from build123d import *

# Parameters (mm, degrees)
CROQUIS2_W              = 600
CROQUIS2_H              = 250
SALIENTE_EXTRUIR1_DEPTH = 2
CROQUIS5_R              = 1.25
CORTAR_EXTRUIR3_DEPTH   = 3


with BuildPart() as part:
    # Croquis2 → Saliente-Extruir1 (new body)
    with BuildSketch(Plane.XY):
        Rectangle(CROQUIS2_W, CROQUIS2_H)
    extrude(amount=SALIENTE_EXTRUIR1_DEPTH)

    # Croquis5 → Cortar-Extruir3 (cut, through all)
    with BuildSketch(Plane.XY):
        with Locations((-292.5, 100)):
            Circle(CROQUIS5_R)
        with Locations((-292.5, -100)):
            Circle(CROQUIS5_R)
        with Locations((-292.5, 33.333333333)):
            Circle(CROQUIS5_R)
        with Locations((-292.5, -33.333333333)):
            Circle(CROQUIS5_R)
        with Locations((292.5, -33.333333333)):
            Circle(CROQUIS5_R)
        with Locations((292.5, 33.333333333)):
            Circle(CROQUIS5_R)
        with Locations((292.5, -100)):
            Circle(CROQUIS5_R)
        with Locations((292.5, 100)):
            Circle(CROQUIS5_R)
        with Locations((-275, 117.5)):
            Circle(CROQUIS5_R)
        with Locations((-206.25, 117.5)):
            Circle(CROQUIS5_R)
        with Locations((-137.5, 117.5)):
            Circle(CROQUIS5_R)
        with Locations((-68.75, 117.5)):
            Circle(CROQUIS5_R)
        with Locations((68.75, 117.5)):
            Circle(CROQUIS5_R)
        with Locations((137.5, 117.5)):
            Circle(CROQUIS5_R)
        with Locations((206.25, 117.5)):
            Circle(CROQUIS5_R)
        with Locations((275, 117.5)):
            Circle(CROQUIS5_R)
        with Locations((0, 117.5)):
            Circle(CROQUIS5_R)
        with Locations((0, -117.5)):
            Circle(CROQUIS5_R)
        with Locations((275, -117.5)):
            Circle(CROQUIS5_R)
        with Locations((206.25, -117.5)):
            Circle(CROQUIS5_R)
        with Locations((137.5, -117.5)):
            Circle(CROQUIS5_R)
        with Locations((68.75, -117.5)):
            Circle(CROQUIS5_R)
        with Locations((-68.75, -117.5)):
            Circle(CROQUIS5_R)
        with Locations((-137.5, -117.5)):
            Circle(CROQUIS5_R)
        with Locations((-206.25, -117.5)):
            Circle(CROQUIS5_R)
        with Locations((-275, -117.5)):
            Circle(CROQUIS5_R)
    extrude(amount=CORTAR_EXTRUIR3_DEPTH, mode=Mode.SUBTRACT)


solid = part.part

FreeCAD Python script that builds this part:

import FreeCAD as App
import Part
import Sketcher
from FreeCAD import Vector

doc = App.newDocument("Part")
body = doc.addObject("PartDesign::Body", "Body")

# Sketch on XY plane
sketch1 = doc.addObject("Sketcher::SketchObject", "Sketch")
body.addObject(sketch1)
sketch1.AttachmentSupport = (doc.XY_Plane, [""])
sketch1.MapMode = "FlatFace"
sketch1.addGeometry([
    Part.LineSegment(Vector(-300, 125, 0), Vector(-300, -125, 0)),
    Part.LineSegment(Vector(-300, -125, 0), Vector(300, -125, 0)),
    Part.LineSegment(Vector(300, -125, 0), Vector(300, 125, 0)),
    Part.LineSegment(Vector(300, 125, 0), Vector(-300, 125, 0)),
], False)
sketch1.addConstraint([
    Sketcher.Constraint("Coincident", 0, 2, 1, 1),
    Sketcher.Constraint("Coincident", 1, 2, 2, 1),
    Sketcher.Constraint("Coincident", 2, 2, 3, 1),
    Sketcher.Constraint("Coincident", 3, 2, 0, 1),
    Sketcher.Constraint("Vertical", 0),
    Sketcher.Constraint("Horizontal", 1),
    Sketcher.Constraint("Vertical", 2),
    Sketcher.Constraint("Horizontal", 3),
    Sketcher.Constraint("Symmetric", 0, 2, 2, 2, -1, 1),
    Sketcher.Constraint("DistanceX", 1, 1, 1, 2, 600.0),
    Sketcher.Constraint("DistanceY", 0, 2, 0, 1, 250.0),
])
pad1 = doc.addObject("PartDesign::Pad", "Pad")
body.addObject(pad1)
pad1.Profile = sketch1
pad1.Length = 2

# Sketch on XY plane
sketch2 = doc.addObject("Sketcher::SketchObject", "Sketch001")
body.addObject(sketch2)
sketch2.AttachmentSupport = (doc.XY_Plane, [""])
sketch2.MapMode = "FlatFace"
sketch2.addGeometry([
    Part.Circle(Vector(-292.5, 100, 0), Vector(0, 0, 1), 1.25),  # 0
    Part.Circle(Vector(-292.5, -100, 0), Vector(0, 0, 1), 1.25),  # 1
    Part.Circle(Vector(-292.5, 33.333333, 0), Vector(0, 0, 1), 1.25),  # 2
    Part.Circle(Vector(-292.5, -33.333333, 0), Vector(0, 0, 1), 1.25),  # 3
    Part.Circle(Vector(292.5, -33.333333, 0), Vector(0, 0, 1), 1.25),  # 4
    Part.Circle(Vector(292.5, 33.333333, 0), Vector(0, 0, 1), 1.25),  # 5
    Part.Circle(Vector(292.5, -100, 0), Vector(0, 0, 1), 1.25),  # 6
    Part.Circle(Vector(292.5, 100, 0), Vector(0, 0, 1), 1.25),  # 7
    Part.Circle(Vector(-275, 117.5, 0), Vector(0, 0, 1), 1.25),  # 8
    Part.Circle(Vector(-206.25, 117.5, 0), Vector(0, 0, 1), 1.25),  # 9
    Part.Circle(Vector(-137.5, 117.5, 0), Vector(0, 0, 1), 1.25),  # 10
    Part.Circle(Vector(-68.75, 117.5, 0), Vector(0, 0, 1), 1.25),  # 11
    Part.Circle(Vector(68.75, 117.5, 0), Vector(0, 0, 1), 1.25),  # 12
    Part.Circle(Vector(137.5, 117.5, 0), Vector(0, 0, 1), 1.25),  # 13
    Part.Circle(Vector(206.25, 117.5, 0), Vector(0, 0, 1), 1.25),  # 14
    Part.Circle(Vector(275, 117.5, 0), Vector(0, 0, 1), 1.25),  # 15
    Part.Circle(Vector(0, 117.5, 0), Vector(0, 0, 1), 1.25),  # 16
    Part.Circle(Vector(0, -117.5, 0), Vector(0, 0, 1), 1.25),  # 17
    Part.Circle(Vector(275, -117.5, 0), Vector(0, 0, 1), 1.25),  # 18
    Part.Circle(Vector(206.25, -117.5, 0), Vector(0, 0, 1), 1.25),  # 19
    Part.Circle(Vector(137.5, -117.5, 0), Vector(0, 0, 1), 1.25),  # 20
    Part.Circle(Vector(68.75, -117.5, 0), Vector(0, 0, 1), 1.25),  # 21
    Part.Circle(Vector(-68.75, -117.5, 0), Vector(0, 0, 1), 1.25),  # 22
    Part.Circle(Vector(-137.5, -117.5, 0), Vector(0, 0, 1), 1.25),  # 23
    Part.Circle(Vector(-206.25, -117.5, 0), Vector(0, 0, 1), 1.25),  # 24
    Part.Circle(Vector(-275, -117.5, 0), Vector(0, 0, 1), 1.25),  # 25
], False)
sketch2.addConstraint([
    Sketcher.Constraint("Equal", 0, 1),
    Sketcher.Constraint("Equal", 1, 2),
    Sketcher.Constraint("Equal", 2, 3),
    Sketcher.Constraint("Equal", 3, 4),
    Sketcher.Constraint("Equal", 4, 5),
    Sketcher.Constraint("Equal", 5, 6),
    Sketcher.Constraint("Equal", 6, 7),
    Sketcher.Constraint("Equal", 7, 8),
    Sketcher.Constraint("Equal", 8, 9),
    Sketcher.Constraint("Equal", 9, 10),
    Sketcher.Constraint("Equal", 10, 11),
    Sketcher.Constraint("Equal", 11, 12),
    Sketcher.Constraint("Equal", 12, 13),
    Sketcher.Constraint("Equal", 13, 14),
    Sketcher.Constraint("Equal", 14, 15),
    Sketcher.Constraint("Equal", 15, 16),
    Sketcher.Constraint("Equal", 16, 17),
    Sketcher.Constraint("Equal", 17, 18),
    Sketcher.Constraint("Equal", 18, 19),
    Sketcher.Constraint("Equal", 19, 20),
    Sketcher.Constraint("Equal", 20, 21),
    Sketcher.Constraint("Equal", 21, 22),
    Sketcher.Constraint("Equal", 22, 23),
    Sketcher.Constraint("Equal", 23, 24),
    Sketcher.Constraint("Equal", 24, 25),
    Sketcher.Constraint("Symmetric", 2, 3, 4, 3, -1, 1),
    Sketcher.Constraint("Symmetric", 3, 3, 5, 3, -1, 1),
    Sketcher.Constraint("Symmetric", 0, 3, 6, 3, -1, 1),
    Sketcher.Constraint("Symmetric", 1, 3, 7, 3, -1, 1),
    Sketcher.Constraint("Symmetric", 16, 3, 17, 3, -1, 1),
    Sketcher.Constraint("Symmetric", 8, 3, 18, 3, -1, 1),
    Sketcher.Constraint("Symmetric", 9, 3, 19, 3, -1, 1),
    Sketcher.Constraint("Symmetric", 10, 3, 20, 3, -1, 1),
    Sketcher.Constraint("Symmetric", 11, 3, 21, 3, -1, 1),
    Sketcher.Constraint("Symmetric", 12, 3, 22, 3, -1, 1),
    Sketcher.Constraint("Symmetric", 13, 3, 23, 3, -1, 1),
    Sketcher.Constraint("Symmetric", 14, 3, 24, 3, -1, 1),
    Sketcher.Constraint("Symmetric", 15, 3, 25, 3, -1, 1),
    Sketcher.Constraint("Symmetric", 3, 3, 4, 3, -2),
    Sketcher.Constraint("Symmetric", 1, 3, 6, 3, -2),
    Sketcher.Constraint("Symmetric", 11, 3, 12, 3, -2),
    Sketcher.Constraint("Symmetric", 10, 3, 13, 3, -2),
    Sketcher.Constraint("Symmetric", 9, 3, 14, 3, -2),
    Sketcher.Constraint("Symmetric", 8, 3, 15, 3, -2),
    Sketcher.Constraint("PointOnObject", 16, 3, -2),
    Sketcher.Constraint("Horizontal", 8, 3, 9, 3),
    Sketcher.Constraint("Horizontal", 9, 3, 10, 3),
    Sketcher.Constraint("Horizontal", 10, 3, 11, 3),
    Sketcher.Constraint("Horizontal", 15, 3, 16, 3),
    Sketcher.Constraint("Vertical", 1, 3, 2, 3),
    Sketcher.Constraint("Diameter", 0, 2.5),
    Sketcher.Constraint("DistanceY", -1, 1, 0, 3, 100.0),
    Sketcher.Constraint("DistanceX", 8, 3, -1, 1, 275.0),
    Sketcher.Constraint("DistanceX", 3, 3, 4, 3, 585.0),
    Sketcher.Constraint("DistanceX", 0, 3, 10, 3, 155.0),
    Sketcher.Constraint("DistanceY", 17, 3, 16, 3, 235.0),
    Sketcher.Constraint("DistanceX", 9, 3, 11, 3, 137.5),
    Sketcher.Constraint("DistanceX", 11, 3, 12, 3, 137.5),
    Sketcher.Constraint("DistanceY", -1, 1, 2, 3, 33.333333),
])
pocket1 = doc.addObject("PartDesign::Pocket", "Pocket")
body.addObject(pocket1)
pocket1.Profile = sketch2
pocket1.Type = "ThroughAll"
pocket1.Reversed = True

doc.recompute()
